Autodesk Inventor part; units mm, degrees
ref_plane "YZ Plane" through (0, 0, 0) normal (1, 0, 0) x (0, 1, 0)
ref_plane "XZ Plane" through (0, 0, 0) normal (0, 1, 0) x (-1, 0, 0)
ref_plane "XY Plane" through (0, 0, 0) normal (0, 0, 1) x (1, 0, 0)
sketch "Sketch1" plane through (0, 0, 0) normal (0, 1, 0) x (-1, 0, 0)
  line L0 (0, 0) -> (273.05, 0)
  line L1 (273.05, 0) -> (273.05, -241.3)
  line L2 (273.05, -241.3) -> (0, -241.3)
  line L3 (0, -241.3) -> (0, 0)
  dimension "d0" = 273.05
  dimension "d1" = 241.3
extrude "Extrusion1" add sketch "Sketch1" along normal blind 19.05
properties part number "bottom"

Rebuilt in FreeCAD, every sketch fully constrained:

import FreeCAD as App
import Part
import Sketcher
from FreeCAD import Vector
Q = App.Units.Quantity

doc = App.newDocument("Part")
body = doc.addObject("PartDesign::Body", "Body")

# Sketch on XZ plane
sketch1 = doc.addObject("Sketcher::SketchObject", "Sketch")
body.addObject(sketch1)
sketch1.AttachmentSupport = (doc.XZ_Plane, [""])
sketch1.MapMode = "FlatFace"
sketch1.addGeometry([
    Part.LineSegment(Vector(-273, 0, 0), Vector(0, 0, 0)),
    Part.LineSegment(Vector(0, 0, 0), Vector(0, -241, 0)),
    Part.LineSegment(Vector(0, -241, 0), Vector(-273, -241, 0)),
    Part.LineSegment(Vector(-273, -241, 0), Vector(-273, 0, 0)),
], False)
sketch1.addConstraint([
    Sketcher.Constraint("Coincident", 0, 2, 1, 1),
    Sketcher.Constraint("Coincident", 1, 2, 2, 1),
    Sketcher.Constraint("Coincident", 2, 2, 3, 1),
    Sketcher.Constraint("Coincident", 3, 2, 0, 1),
    Sketcher.Constraint("Horizontal", 0),
    Sketcher.Constraint("Vertical", 1),
    Sketcher.Constraint("Horizontal", 2),
    Sketcher.Constraint("Vertical", 3),
    Sketcher.Constraint("Coincident", 0, 2, -1, 1),
    Sketcher.Constraint("DistanceY", 1, 2, 1, 1, Q("9.5 in")),
    Sketcher.Constraint("DistanceX", 0, 1, 0, 2, Q("10.75 in")),
])
pad1 = doc.addObject("PartDesign::Pad", "Pad")
body.addObject(pad1)
pad1.Profile = sketch1
pad1.Length = Q("0.75 in")
pad1.Reversed = True

doc.recompute()
